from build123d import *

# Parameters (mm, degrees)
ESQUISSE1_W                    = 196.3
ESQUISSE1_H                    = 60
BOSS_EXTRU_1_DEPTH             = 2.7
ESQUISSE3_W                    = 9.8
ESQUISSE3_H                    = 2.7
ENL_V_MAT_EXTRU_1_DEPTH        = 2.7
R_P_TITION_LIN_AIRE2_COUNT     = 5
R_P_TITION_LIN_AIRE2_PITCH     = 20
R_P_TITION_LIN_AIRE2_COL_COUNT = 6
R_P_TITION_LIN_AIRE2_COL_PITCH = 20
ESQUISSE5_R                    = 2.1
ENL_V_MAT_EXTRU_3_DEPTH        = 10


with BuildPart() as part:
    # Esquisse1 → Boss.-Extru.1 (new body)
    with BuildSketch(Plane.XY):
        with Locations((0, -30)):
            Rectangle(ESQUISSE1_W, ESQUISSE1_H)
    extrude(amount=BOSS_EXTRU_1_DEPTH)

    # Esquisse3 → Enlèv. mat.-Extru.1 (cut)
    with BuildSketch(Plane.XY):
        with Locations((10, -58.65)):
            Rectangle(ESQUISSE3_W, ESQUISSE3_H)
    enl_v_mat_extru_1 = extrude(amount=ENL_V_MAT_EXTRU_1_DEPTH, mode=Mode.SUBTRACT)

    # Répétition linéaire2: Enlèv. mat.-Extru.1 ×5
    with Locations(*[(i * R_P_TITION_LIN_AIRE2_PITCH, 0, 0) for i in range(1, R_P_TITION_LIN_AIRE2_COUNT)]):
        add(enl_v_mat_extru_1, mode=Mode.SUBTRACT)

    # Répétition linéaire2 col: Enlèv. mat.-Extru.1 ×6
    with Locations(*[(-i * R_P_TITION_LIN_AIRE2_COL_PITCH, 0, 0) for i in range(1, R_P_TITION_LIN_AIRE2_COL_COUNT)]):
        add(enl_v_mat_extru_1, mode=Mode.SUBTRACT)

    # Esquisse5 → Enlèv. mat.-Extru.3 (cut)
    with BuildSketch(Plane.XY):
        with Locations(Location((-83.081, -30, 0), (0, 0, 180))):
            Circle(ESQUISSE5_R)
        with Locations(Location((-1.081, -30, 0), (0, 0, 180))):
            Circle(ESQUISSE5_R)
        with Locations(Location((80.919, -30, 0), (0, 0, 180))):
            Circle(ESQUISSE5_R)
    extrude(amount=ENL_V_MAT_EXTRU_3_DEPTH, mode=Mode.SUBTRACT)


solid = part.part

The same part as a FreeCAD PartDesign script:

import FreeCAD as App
import Part
import Sketcher

doc = App.newDocument("Part")
body = doc.addObject("PartDesign::Body", "Body")

sketch1 = body.newObject("Sketcher::SketchObject", "Sketch")
sketch1.AttachmentSupport = (doc.getObject("XY_Plane"), [""])
sketch1.MapMode = "FlatFace"
sketch1.addGeometry([
    Part.LineSegment(App.Vector(-98, 0, 0), App.Vector(-98, -60, 0)),
    Part.LineSegment(App.Vector(-98, -60, 0), App.Vector(98, -60, 0)),
    Part.LineSegment(App.Vector(98, -60, 0), App.Vector(98, 0, 0)),
    Part.LineSegment(App.Vector(98, 0, 0), App.Vector(-98, 0, 0)),
], False)
sketch1.addConstraint([
    Sketcher.Constraint("Coincident", 0, 2, 1, 1),
    Sketcher.Constraint("Coincident", 1, 2, 2, 1),
    Sketcher.Constraint("Coincident", 2, 2, 3, 1),
    Sketcher.Constraint("Coincident", 3, 2, 0, 1),
    Sketcher.Constraint("Vertical", 0),
    Sketcher.Constraint("Horizontal", 1),
    Sketcher.Constraint("Vertical", 2),
    Sketcher.Constraint("Horizontal", 3),
    Sketcher.Constraint("Symmetric", 2, 2, 3, 2, -1, 1),
    Sketcher.Constraint("DistanceY", 0, 2, 0, 1, 60.0),
    Sketcher.Constraint("DistanceX", 1, 1, 1, 2, 196.3),
])
pad1 = body.newObject("PartDesign::Pad", "Pad")
pad1.Profile = sketch1
pad1.Length = 2.7

sketch2 = body.newObject("Sketcher::SketchObject", "Sketch001")
sketch2.AttachmentSupport = (doc.getObject("XY_Plane"), [""])
sketch2.MapMode = "FlatFace"
sketch2.addGeometry([
    Part.LineSegment(App.Vector(5.1, -57.3, 0), App.Vector(5.1, -60, 0)),
    Part.LineSegment(App.Vector(5.1, -60, 0), App.Vector(14.9, -60, 0)),
    Part.LineSegment(App.Vector(14.9, -60, 0), App.Vector(14.9, -57.3, 0)),
    Part.LineSegment(App.Vector(14.9, -57.3, 0), App.Vector(5.1, -57.3, 0)),
], False)
sketch2.addConstraint([
    Sketcher.Constraint("Coincident", 0, 2, 1, 1),
    Sketcher.Constraint("Coincident", 1, 2, 2, 1),
    Sketcher.Constraint("Coincident", 2, 2, 3, 1),
    Sketcher.Constraint("Coincident", 3, 2, 0, 1),
    Sketcher.Constraint("Vertical", 0),
    Sketcher.Constraint("Horizontal", 1),
    Sketcher.Constraint("Vertical", 2),
    Sketcher.Constraint("Horizontal", 3),
    Sketcher.Constraint("DistanceX", 1, 1, 1, 2, 9.8),
    Sketcher.Constraint("DistanceY", 0, 2, 0, 1, 2.7),
    Sketcher.Constraint("DistanceY", 0, 2, -1, 1, 60.0),
    Sketcher.Constraint("DistanceX", -1, 1, 0, 2, 5.1),
])
pocket1 = body.newObject("PartDesign::Pocket", "Pocket")
pocket1.Profile = sketch2
pocket1.Length = 2.7
pocket1.Reversed = True
doc.recompute()

linearpattern = body.newObject("PartDesign::LinearPattern", "LinearPattern")
linearpattern.Originals = [pocket1]
linearpattern.Direction = (doc.getObject("X_Axis"), [""])
linearpattern.Mode = "offset"
linearpattern.Offset = 20
linearpattern.Occurrences = 5
body.Tip = linearpattern
doc.recompute()

linearpattern2 = body.newObject("PartDesign::LinearPattern", "LinearPattern001")
linearpattern2.Originals = [pocket1]
linearpattern2.Direction = (doc.getObject("X_Axis"), [""])
linearpattern2.Mode = "offset"
linearpattern2.Offset = 20
linearpattern2.Occurrences = 6
linearpattern2.Reversed = True
body.Tip = linearpattern2

sketch3 = body.newObject("Sketcher::SketchObject", "Sketch002")
sketch3.AttachmentSupport = (doc.getObject("XY_Plane"), [""])
sketch3.MapMode = "FlatFace"
sketch3.addGeometry([
    Part.Circle(App.Vector(-83.1, -30, 0), App.Vector(0, 0, 1), 2.1),
    Part.Circle(App.Vector(-1.1, -30, 0), App.Vector(0, 0, 1), 2.1),
    Part.Circle(App.Vector(80.9, -30, 0), App.Vector(0, 0, 1), 2.1),
], False)
sketch3.addConstraint([
    Sketcher.Constraint("Equal", 0, 1),
    Sketcher.Constraint("Equal", 1, 2),
    Sketcher.Constraint("Horizontal", 0, 3, 1, 3),
    Sketcher.Constraint("Horizontal", 1, 3, 2, 3),
    Sketcher.Constraint("Diameter", 0, 4.2),
    Sketcher.Constraint("DistanceY", 0, 3, -1, 1, 30.0),
    Sketcher.Constraint("DistanceX", 0, 3, 1, 3, 82.0),
    Sketcher.Constraint("DistanceX", 1, 3, 2, 3, 82.0),
    Sketcher.Constraint("DistanceX", 0, 3, -1, 1, 83.081),
])
pocket2 = body.newObject("PartDesign::Pocket", "Pocket001")
pocket2.Profile = sketch3
pocket2.Length = 10
pocket2.Reversed = True

doc.recompute()
